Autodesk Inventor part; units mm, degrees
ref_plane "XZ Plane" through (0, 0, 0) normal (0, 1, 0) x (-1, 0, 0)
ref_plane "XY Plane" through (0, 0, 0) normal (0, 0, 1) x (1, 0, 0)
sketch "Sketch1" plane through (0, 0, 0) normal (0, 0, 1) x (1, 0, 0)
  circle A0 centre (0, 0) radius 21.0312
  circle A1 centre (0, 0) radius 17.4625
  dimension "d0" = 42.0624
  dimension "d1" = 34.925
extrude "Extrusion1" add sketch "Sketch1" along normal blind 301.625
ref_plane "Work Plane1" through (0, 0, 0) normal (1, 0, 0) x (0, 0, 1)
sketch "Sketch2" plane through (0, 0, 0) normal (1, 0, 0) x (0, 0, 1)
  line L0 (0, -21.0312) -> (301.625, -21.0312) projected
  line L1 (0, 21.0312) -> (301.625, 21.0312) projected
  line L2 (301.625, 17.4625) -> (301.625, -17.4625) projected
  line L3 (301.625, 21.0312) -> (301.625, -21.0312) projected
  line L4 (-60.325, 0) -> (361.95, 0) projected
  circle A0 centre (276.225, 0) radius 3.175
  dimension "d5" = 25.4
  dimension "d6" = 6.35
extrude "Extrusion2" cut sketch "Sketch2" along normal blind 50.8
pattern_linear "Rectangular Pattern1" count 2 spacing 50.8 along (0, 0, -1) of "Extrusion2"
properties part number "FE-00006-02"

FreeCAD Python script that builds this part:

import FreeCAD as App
import Part
import Sketcher
from FreeCAD import Vector
Q = App.Units.Quantity

doc = App.newDocument("Part")
body = doc.addObject("PartDesign::Body", "Body")

sketch1 = body.newObject("Sketcher::SketchObject", "Sketch")
sketch1.AttachmentSupport = (doc.getObject("XY_Plane"), [""])
sketch1.MapMode = "FlatFace"
sketch1.addGeometry(Part.Circle(Vector(0, 0, 0), Vector(0, 0, 1), 21), False)
sketch1.addGeometry(Part.Circle(Vector(0, 0, 0), Vector(0, 0, 1), 17), False)
sketch1.addConstraint(Sketcher.Constraint("Coincident", 0, 3, -1, 1))
sketch1.addConstraint(Sketcher.Constraint("Coincident", 1, 3, -1, 1))
sketch1.addConstraint(Sketcher.Constraint("Diameter", 0, Q("1.656 in")))
sketch1.addConstraint(Sketcher.Constraint("Diameter", 1, Q("1.375 in")))
pad1 = body.newObject("PartDesign::Pad", "Pad")
pad1.Profile = sketch1
pad1.Length = Q("11.875 in")

sketch2 = body.newObject("Sketcher::SketchObject", "Sketch001")
sketch2.AttachmentSupport = (doc.getObject("YZ_Plane"), [""])
sketch2.MapMode = "FlatFace"
sketch2.addGeometry(Part.Circle(Vector(0, 276.2, 0), Vector(0, 0, 1), 3.2), False)
sketch2.addConstraint(Sketcher.Constraint("PointOnObject", 0, 3, -2))
sketch2.addConstraint(Sketcher.Constraint("Diameter", 0, Q("0.25 in")))
sketch2.addConstraint(Sketcher.Constraint("DistanceY", -1, 1, 0, 3, Q("10.875 in")))
pocket1 = body.newObject("PartDesign::Pocket", "Pocket")
pocket1.Profile = sketch2
pocket1.Length = Q("2 in")
pocket1.Reversed = True
doc.recompute()

linearpattern = body.newObject("PartDesign::LinearPattern", "LinearPattern")
linearpattern.Originals = [pocket1]
linearpattern.Direction = (doc.getObject("Z_Axis"), [""])
linearpattern.Mode = "offset"
linearpattern.Offset = Q("2 in")
linearpattern.Occurrences = 2
linearpattern.Reversed = True
body.Tip = linearpattern

doc.recompute()
